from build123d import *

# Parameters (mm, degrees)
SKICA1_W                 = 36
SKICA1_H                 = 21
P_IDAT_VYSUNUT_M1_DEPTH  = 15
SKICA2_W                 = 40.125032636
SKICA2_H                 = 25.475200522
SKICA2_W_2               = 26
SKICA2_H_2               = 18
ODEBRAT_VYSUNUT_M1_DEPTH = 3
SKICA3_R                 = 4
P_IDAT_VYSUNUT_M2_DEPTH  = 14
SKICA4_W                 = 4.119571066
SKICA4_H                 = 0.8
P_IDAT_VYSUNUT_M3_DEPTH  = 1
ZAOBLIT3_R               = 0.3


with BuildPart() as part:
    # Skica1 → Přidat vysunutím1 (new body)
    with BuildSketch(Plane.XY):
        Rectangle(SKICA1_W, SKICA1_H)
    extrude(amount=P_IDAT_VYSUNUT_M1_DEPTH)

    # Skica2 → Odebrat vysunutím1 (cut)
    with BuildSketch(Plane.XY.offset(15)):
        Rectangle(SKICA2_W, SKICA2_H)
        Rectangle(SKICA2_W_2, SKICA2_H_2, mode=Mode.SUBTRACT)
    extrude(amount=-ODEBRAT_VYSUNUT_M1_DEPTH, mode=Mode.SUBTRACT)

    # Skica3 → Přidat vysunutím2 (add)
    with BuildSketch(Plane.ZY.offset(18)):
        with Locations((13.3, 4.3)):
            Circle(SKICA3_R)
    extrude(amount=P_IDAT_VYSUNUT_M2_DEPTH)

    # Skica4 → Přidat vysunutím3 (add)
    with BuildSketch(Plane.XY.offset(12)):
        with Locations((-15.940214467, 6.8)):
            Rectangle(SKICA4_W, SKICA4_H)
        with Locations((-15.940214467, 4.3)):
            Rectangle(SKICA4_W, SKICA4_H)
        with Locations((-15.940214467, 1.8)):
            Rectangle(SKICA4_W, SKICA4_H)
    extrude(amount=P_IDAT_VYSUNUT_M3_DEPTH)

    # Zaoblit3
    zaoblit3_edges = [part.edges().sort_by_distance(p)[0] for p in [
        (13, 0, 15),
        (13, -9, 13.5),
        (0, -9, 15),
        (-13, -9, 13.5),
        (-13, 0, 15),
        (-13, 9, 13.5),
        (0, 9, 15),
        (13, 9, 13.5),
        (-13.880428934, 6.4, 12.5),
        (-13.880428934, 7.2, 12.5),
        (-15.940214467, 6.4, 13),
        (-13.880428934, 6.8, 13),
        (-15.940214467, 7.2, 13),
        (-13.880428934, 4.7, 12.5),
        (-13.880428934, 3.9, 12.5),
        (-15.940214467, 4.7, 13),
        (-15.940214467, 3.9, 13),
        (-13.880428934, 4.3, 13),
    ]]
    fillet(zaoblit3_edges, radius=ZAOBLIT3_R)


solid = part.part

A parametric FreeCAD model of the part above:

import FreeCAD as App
import Part
import Sketcher

V = App.Vector
Q = App.Units.Quantity


def edges_at(feature, points):
    """Names of the edges that pass closest to the given points."""
    edges = feature.Shape.Edges
    near = lambda p: min(range(len(edges)), key=lambda i: edges[i].distToShape(Part.Vertex(*p))[0])
    return sorted({f"Edge{near(p) + 1}" for p in points})


def add_polygon(sketch, points):
    """Adds a closed chain of lines whose ends are joined by coincident constraints."""
    first, n = sketch.GeometryCount, len(points)
    for a, b in zip(points, points[1:] + points[:1]):
        sketch.addGeometry(Part.LineSegment(App.Vector(*a, 0), App.Vector(*b, 0)), False)
    for i in range(n):
        sketch.addConstraint(Sketcher.Constraint("Coincident", first + i, 2, first + (i + 1) % n, 1))

doc = App.newDocument("Part")
body = doc.addObject("PartDesign::Body", "Body")

sketch1 = doc.addObject("Sketcher::SketchObject", "Sketch")
body.addObject(sketch1)
sketch1.AttachmentSupport = (doc.XY_Plane, [""])
sketch1.MapMode = "FlatFace"
add_polygon(sketch1, [(-18, 10.5), (-18, -10.5), (18, -10.5), (18, 10.5)])
sketch1.addConstraint(Sketcher.Constraint("Vertical", 0))
sketch1.addConstraint(Sketcher.Constraint("Horizontal", 1))
sketch1.addConstraint(Sketcher.Constraint("Vertical", 2))
sketch1.addConstraint(Sketcher.Constraint("Horizontal", 3))
sketch1.addConstraint(Sketcher.Constraint("Symmetric", 0, 2, 2, 2, -1, 1))
sketch1.addConstraint(Sketcher.Constraint("DistanceX", 1, 1, 1, 2, Q("36 mm")))
sketch1.addConstraint(Sketcher.Constraint("DistanceY", 0, 2, 0, 1, Q("21 mm")))
pad1 = doc.addObject("PartDesign::Pad", "Pad")
body.addObject(pad1)
pad1.Profile = sketch1
pad1.Length = 15

sketch2 = doc.addObject("Sketcher::SketchObject", "Sketch001")
body.addObject(sketch2)
sketch2.AttachmentSupport = (doc.XY_Plane, [""])
sketch2.MapMode = "FlatFace"
sketch2.AttachmentOffset = App.Placement(V(0, 0, 15), App.Rotation())
add_polygon(sketch2, [(-20.062516, 12.7376), (-20.062516, -12.7376), (20.062516, -12.7376), (20.062516, 12.7376)])
add_polygon(sketch2, [(13, -9), (-13, -9), (-13, 9), (13, 9)])
sketch2.addConstraint(Sketcher.Constraint("Vertical", 0))
sketch2.addConstraint(Sketcher.Constraint("Horizontal", 1))
sketch2.addConstraint(Sketcher.Constraint("Vertical", 2))
sketch2.addConstraint(Sketcher.Constraint("Horizontal", 3))
sketch2.addConstraint(Sketcher.Constraint("Horizontal", 4))
sketch2.addConstraint(Sketcher.Constraint("Vertical", 5))
sketch2.addConstraint(Sketcher.Constraint("Horizontal", 6))
sketch2.addConstraint(Sketcher.Constraint("Vertical", 7))
sketch2.addConstraint(Sketcher.Constraint("Symmetric", 0, 2, 2, 2, -1, 1))
sketch2.addConstraint(Sketcher.Constraint("Symmetric", 4, 2, 6, 2, -1, 1))
sketch2.addConstraint(Sketcher.Constraint("DistanceX", 4, 2, 4, 1, Q("26 mm")))
sketch2.addConstraint(Sketcher.Constraint("DistanceY", 5, 1, 5, 2, Q("18 mm")))
sketch2.addConstraint(Sketcher.Constraint("DistanceY", 0, 2, 0, 1, Q("25.475201 mm")))
sketch2.addConstraint(Sketcher.Constraint("DistanceX", 1, 1, 1, 2, Q("40.125033 mm")))
pocket1 = doc.addObject("PartDesign::Pocket", "Pocket")
body.addObject(pocket1)
pocket1.Profile = sketch2
pocket1.Length = 3

sketch3 = doc.addObject("Sketcher::SketchObject", "Sketch002")
body.addObject(sketch3)
sketch3.AttachmentSupport = (doc.YZ_Plane, [""])
sketch3.MapMode = "FlatFace"
sketch3.AttachmentOffset = App.Placement(V(0, 0, -18), App.Rotation())
sketch3.addGeometry(Part.Circle(V(4.3, 13.3, 0), V(0, 0, 1), 4), False)
sketch3.addConstraint(Sketcher.Constraint("Diameter", 0, Q("8 mm")))
sketch3.addConstraint(Sketcher.Constraint("DistanceX", -1, 1, 0, 3, Q("4.3 mm")))
sketch3.addConstraint(Sketcher.Constraint("DistanceY", -1, 1, 0, 3, Q("13.3 mm")))
pad2 = doc.addObject("PartDesign::Pad", "Pad001")
body.addObject(pad2)
pad2.Profile = sketch3
pad2.Length = 14
pad2.Reversed = True

sketch4 = doc.addObject("Sketcher::SketchObject", "Sketch003")
body.addObject(sketch4)
sketch4.AttachmentSupport = (doc.XY_Plane, [""])
sketch4.MapMode = "FlatFace"
sketch4.AttachmentOffset = App.Placement(V(0, 0, 12), App.Rotation())
add_polygon(sketch4, [(-18, 7.2), (-18, 6.4), (-13.880429, 6.4), (-13.880429, 7.2)])
add_polygon(sketch4, [(-18, 4.7), (-18, 3.9), (-13.880429, 3.9), (-13.880429, 4.7)])
add_polygon(sketch4, [(-18, 2.2), (-18, 1.4), (-13.880429, 1.4), (-13.880429, 2.2)])
sketch4.addConstraint(Sketcher.Constraint("Vertical", 0))
sketch4.addConstraint(Sketcher.Constraint("Horizontal", 1))
sketch4.addConstraint(Sketcher.Constraint("Vertical", 2))
sketch4.addConstraint(Sketcher.Constraint("Horizontal", 3))
sketch4.addConstraint(Sketcher.Constraint("Vertical", 4))
sketch4.addConstraint(Sketcher.Constraint("Horizontal", 5))
sketch4.addConstraint(Sketcher.Constraint("Vertical", 6))
sketch4.addConstraint(Sketcher.Constraint("Horizontal", 7))
sketch4.addConstraint(Sketcher.Constraint("Vertical", 8))
sketch4.addConstraint(Sketcher.Constraint("Horizontal", 9))
sketch4.addConstraint(Sketcher.Constraint("Vertical", 10))
sketch4.addConstraint(Sketcher.Constraint("Horizontal", 11))
sketch4.addConstraint(Sketcher.Constraint("Vertical", 3, 2, 4, 2))
sketch4.addConstraint(Sketcher.Constraint("Vertical", 2, 2, 5, 2))
sketch4.addConstraint(Sketcher.Constraint("Vertical", 7, 2, 8, 2))
sketch4.addConstraint(Sketcher.Constraint("Vertical", 6, 2, 9, 2))
sketch4.addConstraint(Sketcher.Constraint("Equal", 2, 4))
sketch4.addConstraint(Sketcher.Constraint("Equal", 6, 8))
sketch4.addConstraint(Sketcher.Constraint("DistanceY", 0, 2, 0, 1, Q("0.8 mm")))
sketch4.addConstraint(Sketcher.Constraint("DistanceX", 0, 2, -1, 1, Q("18 mm")))
sketch4.addConstraint(Sketcher.Constraint("DistanceY", 8, 2, 0, 2, Q("5 mm")))
sketch4.addConstraint(Sketcher.Constraint("DistanceY", -1, 1, 0, 2, Q("6.4 mm")))
sketch4.addConstraint(Sketcher.Constraint("DistanceY", -1, 1, 4, 2, Q("3.9 mm")))
sketch4.addConstraint(Sketcher.Constraint("DistanceX", 1, 1, 1, 2, Q("4.119571 mm")))
pad3 = doc.addObject("PartDesign::Pad", "Pad002")
body.addObject(pad3)
pad3.Profile = sketch4
pad3.Length = 1
doc.recompute()

fillet = doc.addObject("PartDesign::Fillet", "Fillet")
body.addObject(fillet)
fillet.Base = (pad3, edges_at(pad3, [
    (13, 0, 15),
    (13, -9, 13.5),
    (0, -9, 15),
    (-13, -9, 13.5),
    (-13, 0, 15),
    (-13, 9, 13.5),
    (0, 9, 15),
    (13, 9, 13.5),
    (-13.88, 6.4, 12.5),
    (-13.88, 7.2, 12.5),
    (-15.94, 6.4, 13),
    (-13.88, 6.8, 13),
    (-15.94, 7.2, 13),
    (-13.88, 4.7, 12.5),
    (-13.88, 3.9, 12.5),
    (-15.94, 4.7, 13),
    (-15.94, 3.9, 13),
    (-13.88, 4.3, 13),
]))
fillet.Radius = 0.3

doc.recompute()
